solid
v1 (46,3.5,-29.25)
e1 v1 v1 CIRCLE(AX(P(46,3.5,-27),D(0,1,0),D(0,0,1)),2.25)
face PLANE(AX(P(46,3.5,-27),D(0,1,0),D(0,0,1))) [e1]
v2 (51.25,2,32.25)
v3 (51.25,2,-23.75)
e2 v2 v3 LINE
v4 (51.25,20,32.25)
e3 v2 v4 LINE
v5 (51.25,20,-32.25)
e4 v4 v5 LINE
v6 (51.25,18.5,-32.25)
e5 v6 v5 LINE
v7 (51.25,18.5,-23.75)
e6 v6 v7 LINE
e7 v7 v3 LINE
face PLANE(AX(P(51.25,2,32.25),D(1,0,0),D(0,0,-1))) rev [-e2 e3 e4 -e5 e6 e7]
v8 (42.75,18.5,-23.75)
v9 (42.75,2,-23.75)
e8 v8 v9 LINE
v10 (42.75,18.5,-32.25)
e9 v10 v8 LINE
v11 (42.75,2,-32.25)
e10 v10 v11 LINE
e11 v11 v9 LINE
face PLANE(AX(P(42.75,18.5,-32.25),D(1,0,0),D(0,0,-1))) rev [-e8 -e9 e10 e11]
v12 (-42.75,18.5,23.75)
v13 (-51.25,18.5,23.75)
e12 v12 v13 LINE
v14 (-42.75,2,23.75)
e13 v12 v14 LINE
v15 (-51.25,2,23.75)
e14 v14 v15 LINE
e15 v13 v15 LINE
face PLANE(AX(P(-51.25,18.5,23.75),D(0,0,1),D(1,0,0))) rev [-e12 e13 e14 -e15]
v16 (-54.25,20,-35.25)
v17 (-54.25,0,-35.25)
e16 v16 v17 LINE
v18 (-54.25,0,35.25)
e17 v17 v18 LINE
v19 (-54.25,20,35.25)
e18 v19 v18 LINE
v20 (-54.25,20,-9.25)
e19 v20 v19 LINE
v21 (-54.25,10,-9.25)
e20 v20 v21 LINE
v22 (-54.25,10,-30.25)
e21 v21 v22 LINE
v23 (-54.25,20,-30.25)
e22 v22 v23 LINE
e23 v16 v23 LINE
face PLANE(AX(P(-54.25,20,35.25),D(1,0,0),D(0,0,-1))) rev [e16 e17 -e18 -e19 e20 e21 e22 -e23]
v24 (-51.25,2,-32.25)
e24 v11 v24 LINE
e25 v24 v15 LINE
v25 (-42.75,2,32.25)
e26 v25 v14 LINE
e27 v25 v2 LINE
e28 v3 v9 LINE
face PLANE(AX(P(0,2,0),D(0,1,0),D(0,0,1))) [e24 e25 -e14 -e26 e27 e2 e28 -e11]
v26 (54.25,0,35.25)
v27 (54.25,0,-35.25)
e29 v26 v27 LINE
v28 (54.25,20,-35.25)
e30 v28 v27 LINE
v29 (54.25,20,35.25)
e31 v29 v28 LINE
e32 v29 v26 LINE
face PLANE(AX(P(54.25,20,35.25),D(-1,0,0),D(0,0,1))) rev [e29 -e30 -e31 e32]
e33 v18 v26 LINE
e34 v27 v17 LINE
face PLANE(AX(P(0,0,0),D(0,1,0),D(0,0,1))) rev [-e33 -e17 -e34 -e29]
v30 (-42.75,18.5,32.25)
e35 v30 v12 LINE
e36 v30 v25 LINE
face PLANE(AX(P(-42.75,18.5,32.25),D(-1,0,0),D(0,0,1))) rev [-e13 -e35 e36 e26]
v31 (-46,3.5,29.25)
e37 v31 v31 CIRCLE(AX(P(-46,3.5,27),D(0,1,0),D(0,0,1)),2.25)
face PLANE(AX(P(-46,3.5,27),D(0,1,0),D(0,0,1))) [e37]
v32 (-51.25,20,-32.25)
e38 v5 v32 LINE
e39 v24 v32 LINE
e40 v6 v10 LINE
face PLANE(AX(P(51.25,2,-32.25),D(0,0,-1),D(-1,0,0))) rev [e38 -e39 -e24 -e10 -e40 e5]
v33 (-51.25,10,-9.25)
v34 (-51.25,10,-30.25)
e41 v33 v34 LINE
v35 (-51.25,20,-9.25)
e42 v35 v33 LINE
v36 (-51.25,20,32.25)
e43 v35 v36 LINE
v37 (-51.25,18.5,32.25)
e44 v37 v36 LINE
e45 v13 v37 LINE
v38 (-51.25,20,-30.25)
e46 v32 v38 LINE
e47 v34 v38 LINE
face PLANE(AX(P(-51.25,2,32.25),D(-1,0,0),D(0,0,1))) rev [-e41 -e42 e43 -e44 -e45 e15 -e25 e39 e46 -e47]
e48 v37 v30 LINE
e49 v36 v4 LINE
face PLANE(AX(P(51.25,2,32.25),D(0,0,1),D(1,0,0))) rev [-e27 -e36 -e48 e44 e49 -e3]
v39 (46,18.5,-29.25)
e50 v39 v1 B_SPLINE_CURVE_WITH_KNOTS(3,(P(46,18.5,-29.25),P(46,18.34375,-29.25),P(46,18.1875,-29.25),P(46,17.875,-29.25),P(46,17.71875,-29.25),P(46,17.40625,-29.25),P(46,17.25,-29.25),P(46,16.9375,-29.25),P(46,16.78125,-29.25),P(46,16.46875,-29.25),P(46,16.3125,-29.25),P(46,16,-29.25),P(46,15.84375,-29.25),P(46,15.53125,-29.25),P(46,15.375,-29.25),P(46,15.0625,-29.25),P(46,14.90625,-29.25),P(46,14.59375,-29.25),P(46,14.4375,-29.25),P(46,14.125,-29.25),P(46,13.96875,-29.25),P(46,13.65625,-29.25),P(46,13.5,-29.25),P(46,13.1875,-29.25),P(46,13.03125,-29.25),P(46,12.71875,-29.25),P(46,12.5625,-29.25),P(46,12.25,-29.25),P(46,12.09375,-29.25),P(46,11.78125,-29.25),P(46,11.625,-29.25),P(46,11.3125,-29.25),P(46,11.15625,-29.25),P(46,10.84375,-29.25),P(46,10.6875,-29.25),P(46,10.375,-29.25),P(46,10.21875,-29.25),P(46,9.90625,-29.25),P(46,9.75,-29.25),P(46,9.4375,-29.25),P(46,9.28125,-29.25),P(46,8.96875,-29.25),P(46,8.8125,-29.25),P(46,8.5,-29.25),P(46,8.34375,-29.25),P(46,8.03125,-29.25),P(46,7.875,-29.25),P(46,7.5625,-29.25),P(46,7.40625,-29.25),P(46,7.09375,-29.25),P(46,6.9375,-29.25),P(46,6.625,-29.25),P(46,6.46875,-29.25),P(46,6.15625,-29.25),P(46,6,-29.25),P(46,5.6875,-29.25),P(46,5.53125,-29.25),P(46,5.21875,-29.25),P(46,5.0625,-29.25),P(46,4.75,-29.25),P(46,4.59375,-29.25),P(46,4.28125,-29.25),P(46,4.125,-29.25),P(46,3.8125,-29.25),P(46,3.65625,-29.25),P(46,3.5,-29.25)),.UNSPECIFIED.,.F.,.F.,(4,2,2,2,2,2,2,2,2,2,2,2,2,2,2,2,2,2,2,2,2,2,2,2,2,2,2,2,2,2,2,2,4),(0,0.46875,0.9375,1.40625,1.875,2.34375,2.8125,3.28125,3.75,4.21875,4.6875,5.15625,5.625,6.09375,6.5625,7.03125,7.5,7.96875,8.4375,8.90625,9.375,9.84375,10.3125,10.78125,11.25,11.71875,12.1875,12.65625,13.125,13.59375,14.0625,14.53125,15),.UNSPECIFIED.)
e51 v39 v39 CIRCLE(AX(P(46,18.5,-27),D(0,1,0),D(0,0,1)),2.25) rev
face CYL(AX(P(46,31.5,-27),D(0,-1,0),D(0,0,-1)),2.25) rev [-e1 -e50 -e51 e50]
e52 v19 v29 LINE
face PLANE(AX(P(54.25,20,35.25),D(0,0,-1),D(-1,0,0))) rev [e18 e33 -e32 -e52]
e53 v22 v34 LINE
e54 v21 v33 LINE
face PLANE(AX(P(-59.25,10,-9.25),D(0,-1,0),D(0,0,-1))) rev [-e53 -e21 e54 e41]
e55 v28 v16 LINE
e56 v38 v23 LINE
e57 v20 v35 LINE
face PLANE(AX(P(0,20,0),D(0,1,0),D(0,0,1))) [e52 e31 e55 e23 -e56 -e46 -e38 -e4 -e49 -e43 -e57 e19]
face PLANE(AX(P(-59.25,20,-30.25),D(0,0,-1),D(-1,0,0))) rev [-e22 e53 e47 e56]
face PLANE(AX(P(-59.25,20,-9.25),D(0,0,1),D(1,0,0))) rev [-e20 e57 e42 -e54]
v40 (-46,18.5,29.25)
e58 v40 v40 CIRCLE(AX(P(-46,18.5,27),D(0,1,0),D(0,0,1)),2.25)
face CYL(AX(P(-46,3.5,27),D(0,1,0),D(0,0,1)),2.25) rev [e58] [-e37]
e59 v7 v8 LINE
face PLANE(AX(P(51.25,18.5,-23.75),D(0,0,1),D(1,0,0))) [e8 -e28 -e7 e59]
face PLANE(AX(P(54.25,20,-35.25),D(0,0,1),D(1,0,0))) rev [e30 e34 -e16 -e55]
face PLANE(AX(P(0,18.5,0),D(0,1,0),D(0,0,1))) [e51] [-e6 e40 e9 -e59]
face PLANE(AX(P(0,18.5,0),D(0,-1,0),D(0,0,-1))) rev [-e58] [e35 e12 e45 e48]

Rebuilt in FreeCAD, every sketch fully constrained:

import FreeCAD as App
import Part
import Sketcher
Q = App.Units.Quantity


def add_polygon(sketch, points):
    """Adds a closed chain of lines whose ends are joined by coincident constraints."""
    first, n = sketch.GeometryCount, len(points)
    for a, b in zip(points, points[1:] + points[:1]):
        sketch.addGeometry(Part.LineSegment(App.Vector(*a, 0), App.Vector(*b, 0)), False)
    for i in range(n):
        sketch.addConstraint(Sketcher.Constraint("Coincident", first + i, 2, first + (i + 1) % n, 1))

doc = App.newDocument("Part")
body = doc.addObject("PartDesign::Body", "Body")

# Sketch on XZ plane
sketch1 = body.newObject("Sketcher::SketchObject", "Sketch")
sketch1.AttachmentSupport = (doc.getObject("XZ_Plane"), [""])
sketch1.MapMode = "FlatFace"
add_polygon(sketch1, [(-54, -35), (-54, 35), (54, 35), (54, -35)])  # lines 0-3
sketch1.addConstraint(Sketcher.Constraint("Vertical", 0))
sketch1.addConstraint(Sketcher.Constraint("Horizontal", 1))
sketch1.addConstraint(Sketcher.Constraint("Vertical", 2))
sketch1.addConstraint(Sketcher.Constraint("Horizontal", 3))
sketch1.addConstraint(Sketcher.Constraint("Symmetric", 0, 2, 2, 2, -1, 1))
sketch1.addConstraint(Sketcher.Constraint("DistanceX", 1, 1, 1, 2, Q("108.5 mm")))
sketch1.addConstraint(Sketcher.Constraint("DistanceY", 0, 1, 0, 2, Q("70.5 mm")))
pad1 = body.newObject("PartDesign::Pad", "Pad")
pad1.Profile = sketch1
pad1.Length = 20
pad1.Reversed = True

# Sketch on XZ plane
sketch2 = body.newObject("Sketcher::SketchObject", "Sketch001")
sketch2.AttachmentSupport = (doc.getObject("XZ_Plane"), [""])
sketch2.MapMode = "FlatFace"
sketch2.AttachmentOffset = App.Placement(App.Vector(0, 0, -20), App.Rotation())
add_polygon(sketch2, [(-51, -32), (-51, 32), (51, 32), (51, -32)])  # lines 0-3
sketch2.addConstraint(Sketcher.Constraint("Vertical", 0))
sketch2.addConstraint(Sketcher.Constraint("Horizontal", 1))
sketch2.addConstraint(Sketcher.Constraint("Vertical", 2))
sketch2.addConstraint(Sketcher.Constraint("Horizontal", 3))
sketch2.addConstraint(Sketcher.Constraint("Symmetric", 0, 2, 2, 2, -1, 1))
sketch2.addConstraint(Sketcher.Constraint("DistanceX", 1, 1, 1, 2, Q("102.5 mm")))
sketch2.addConstraint(Sketcher.Constraint("DistanceY", 0, 1, 0, 2, Q("64.5 mm")))
pocket1 = body.newObject("PartDesign::Pocket", "Pocket")
pocket1.Profile = sketch2
pocket1.Length = 18
pocket1.Reversed = True

# Sketch on XZ plane
sketch3 = body.newObject("Sketcher::SketchObject", "Sketch002")
sketch3.AttachmentSupport = (doc.getObject("XZ_Plane"), [""])
sketch3.MapMode = "FlatFace"
sketch3.AttachmentOffset = App.Placement(App.Vector(0, 0, -2), App.Rotation())
add_polygon(sketch3, [(-51, 24), (-51, 32), (-43, 32), (-43, 24)])  # lines 0-3
sketch3.addConstraint(Sketcher.Constraint("Vertical", 0))
sketch3.addConstraint(Sketcher.Constraint("Horizontal", 1))
sketch3.addConstraint(Sketcher.Constraint("Vertical", 2))
sketch3.addConstraint(Sketcher.Constraint("Horizontal", 3))
sketch3.addConstraint(Sketcher.Constraint("Equal", 3, 0))
sketch3.addConstraint(Sketcher.Constraint("DistanceX", 1, 1, 1, 2, Q("8.5 mm")))
sketch3.addConstraint(Sketcher.Constraint("DistanceX", 0, 2, -1, 1, Q("51.25 mm")))
sketch3.addConstraint(Sketcher.Constraint("DistanceY", -1, 1, 0, 2, Q("32.25 mm")))
pad2 = body.newObject("PartDesign::Pad", "Pad001")
pad2.Profile = sketch3
pad2.Length = 16.5
pad2.Reversed = True

# Sketch on XZ plane
sketch4 = body.newObject("Sketcher::SketchObject", "Sketch003")
sketch4.AttachmentSupport = (doc.getObject("XZ_Plane"), [""])
sketch4.MapMode = "FlatFace"
sketch4.AttachmentOffset = App.Placement(App.Vector(0, 0, -18.5), App.Rotation())
sketch4.addGeometry(Part.Circle(App.Vector(-46, 27, 0), App.Vector(0, 0, 1), 2.2), False)
sketch4.addConstraint(Sketcher.Constraint("Diameter", 0, Q("4.5 mm")))
sketch4.addConstraint(Sketcher.Constraint("DistanceX", 0, 3, -1, 1, Q("46 mm")))
sketch4.addConstraint(Sketcher.Constraint("DistanceY", -1, 1, 0, 3, Q("27 mm")))
pocket2 = body.newObject("PartDesign::Pocket", "Pocket001")
pocket2.Profile = sketch4
pocket2.Length = 15
pocket2.Reversed = True

# Sketch on YZ plane
sketch5 = body.newObject("Sketcher::SketchObject", "Sketch004")
sketch5.AttachmentSupport = (doc.getObject("YZ_Plane"), [""])
sketch5.MapMode = "FlatFace"
sketch5.AttachmentOffset = App.Placement(App.Vector(0, 0, -51.25), App.Rotation())
add_polygon(sketch5, [(20, -9), (10, -9), (10, -30), (20, -30)])  # lines 0-3
sketch5.addConstraint(Sketcher.Constraint("Horizontal", 0))
sketch5.addConstraint(Sketcher.Constraint("Vertical", 1))
sketch5.addConstraint(Sketcher.Constraint("Horizontal", 2))
sketch5.addConstraint(Sketcher.Constraint("Vertical", 3))
sketch5.addConstraint(Sketcher.Constraint("DistanceX", 0, 2, 0, 1, Q("10 mm")))
sketch5.addConstraint(Sketcher.Constraint("DistanceY", 1, 2, 1, 1, Q("21 mm")))
sketch5.addConstraint(Sketcher.Constraint("DistanceX", -1, 1, 0, 2, Q("10 mm")))
sketch5.addConstraint(Sketcher.Constraint("DistanceY", 0, 2, -1, 1, Q("9.25 mm")))
pocket3 = body.newObject("PartDesign::Pocket", "Pocket002")
pocket3.Profile = sketch5
pocket3.Length = 8

# Sketch on XZ plane
sketch6 = body.newObject("Sketcher::SketchObject", "Sketch005")
sketch6.AttachmentSupport = (doc.getObject("XZ_Plane"), [""])
sketch6.MapMode = "FlatFace"
sketch6.AttachmentOffset = App.Placement(App.Vector(0, 0, -2), App.Rotation())
add_polygon(sketch6, [(43, -32), (43, -24), (51, -24), (51, -32)])  # lines 0-3
sketch6.addConstraint(Sketcher.Constraint("Vertical", 0))
sketch6.addConstraint(Sketcher.Constraint("Horizontal", 1))
sketch6.addConstraint(Sketcher.Constraint("Vertical", 2))
sketch6.addConstraint(Sketcher.Constraint("Horizontal", 3))
sketch6.addConstraint(Sketcher.Constraint("Equal", 3, 0))
sketch6.addConstraint(Sketcher.Constraint("DistanceX", 1, 1, 1, 2, Q("8.5 mm")))
sketch6.addConstraint(Sketcher.Constraint("DistanceX", -1, 1, 0, 2, Q("42.75 mm")))
sketch6.addConstraint(Sketcher.Constraint("DistanceY", 0, 2, -1, 1, Q("23.75 mm")))
pad3 = body.newObject("PartDesign::Pad", "Pad002")
pad3.Profile = sketch6
pad3.Length = 16.5
pad3.Reversed = True

# Sketch on XZ plane
sketch7 = body.newObject("Sketcher::SketchObject", "Sketch006")
sketch7.AttachmentSupport = (doc.getObject("XZ_Plane"), [""])
sketch7.MapMode = "FlatFace"
sketch7.AttachmentOffset = App.Placement(App.Vector(0, 0, -18.5), App.Rotation())
sketch7.addGeometry(Part.Circle(App.Vector(46, -27, 0), App.Vector(0, 0, 1), 2.2), False)
sketch7.addConstraint(Sketcher.Constraint("Diameter", 0, Q("4.5 mm")))
sketch7.addConstraint(Sketcher.Constraint("DistanceX", -1, 1, 0, 3, Q("46 mm")))
sketch7.addConstraint(Sketcher.Constraint("DistanceY", 0, 3, -1, 1, Q("27 mm")))
pocket4 = body.newObject("PartDesign::Pocket", "Pocket003")
pocket4.Profile = sketch7
pocket4.Type = "TwoLengths"
pocket4.Length = 13
pocket4.Length2 = 15

doc.recompute()
